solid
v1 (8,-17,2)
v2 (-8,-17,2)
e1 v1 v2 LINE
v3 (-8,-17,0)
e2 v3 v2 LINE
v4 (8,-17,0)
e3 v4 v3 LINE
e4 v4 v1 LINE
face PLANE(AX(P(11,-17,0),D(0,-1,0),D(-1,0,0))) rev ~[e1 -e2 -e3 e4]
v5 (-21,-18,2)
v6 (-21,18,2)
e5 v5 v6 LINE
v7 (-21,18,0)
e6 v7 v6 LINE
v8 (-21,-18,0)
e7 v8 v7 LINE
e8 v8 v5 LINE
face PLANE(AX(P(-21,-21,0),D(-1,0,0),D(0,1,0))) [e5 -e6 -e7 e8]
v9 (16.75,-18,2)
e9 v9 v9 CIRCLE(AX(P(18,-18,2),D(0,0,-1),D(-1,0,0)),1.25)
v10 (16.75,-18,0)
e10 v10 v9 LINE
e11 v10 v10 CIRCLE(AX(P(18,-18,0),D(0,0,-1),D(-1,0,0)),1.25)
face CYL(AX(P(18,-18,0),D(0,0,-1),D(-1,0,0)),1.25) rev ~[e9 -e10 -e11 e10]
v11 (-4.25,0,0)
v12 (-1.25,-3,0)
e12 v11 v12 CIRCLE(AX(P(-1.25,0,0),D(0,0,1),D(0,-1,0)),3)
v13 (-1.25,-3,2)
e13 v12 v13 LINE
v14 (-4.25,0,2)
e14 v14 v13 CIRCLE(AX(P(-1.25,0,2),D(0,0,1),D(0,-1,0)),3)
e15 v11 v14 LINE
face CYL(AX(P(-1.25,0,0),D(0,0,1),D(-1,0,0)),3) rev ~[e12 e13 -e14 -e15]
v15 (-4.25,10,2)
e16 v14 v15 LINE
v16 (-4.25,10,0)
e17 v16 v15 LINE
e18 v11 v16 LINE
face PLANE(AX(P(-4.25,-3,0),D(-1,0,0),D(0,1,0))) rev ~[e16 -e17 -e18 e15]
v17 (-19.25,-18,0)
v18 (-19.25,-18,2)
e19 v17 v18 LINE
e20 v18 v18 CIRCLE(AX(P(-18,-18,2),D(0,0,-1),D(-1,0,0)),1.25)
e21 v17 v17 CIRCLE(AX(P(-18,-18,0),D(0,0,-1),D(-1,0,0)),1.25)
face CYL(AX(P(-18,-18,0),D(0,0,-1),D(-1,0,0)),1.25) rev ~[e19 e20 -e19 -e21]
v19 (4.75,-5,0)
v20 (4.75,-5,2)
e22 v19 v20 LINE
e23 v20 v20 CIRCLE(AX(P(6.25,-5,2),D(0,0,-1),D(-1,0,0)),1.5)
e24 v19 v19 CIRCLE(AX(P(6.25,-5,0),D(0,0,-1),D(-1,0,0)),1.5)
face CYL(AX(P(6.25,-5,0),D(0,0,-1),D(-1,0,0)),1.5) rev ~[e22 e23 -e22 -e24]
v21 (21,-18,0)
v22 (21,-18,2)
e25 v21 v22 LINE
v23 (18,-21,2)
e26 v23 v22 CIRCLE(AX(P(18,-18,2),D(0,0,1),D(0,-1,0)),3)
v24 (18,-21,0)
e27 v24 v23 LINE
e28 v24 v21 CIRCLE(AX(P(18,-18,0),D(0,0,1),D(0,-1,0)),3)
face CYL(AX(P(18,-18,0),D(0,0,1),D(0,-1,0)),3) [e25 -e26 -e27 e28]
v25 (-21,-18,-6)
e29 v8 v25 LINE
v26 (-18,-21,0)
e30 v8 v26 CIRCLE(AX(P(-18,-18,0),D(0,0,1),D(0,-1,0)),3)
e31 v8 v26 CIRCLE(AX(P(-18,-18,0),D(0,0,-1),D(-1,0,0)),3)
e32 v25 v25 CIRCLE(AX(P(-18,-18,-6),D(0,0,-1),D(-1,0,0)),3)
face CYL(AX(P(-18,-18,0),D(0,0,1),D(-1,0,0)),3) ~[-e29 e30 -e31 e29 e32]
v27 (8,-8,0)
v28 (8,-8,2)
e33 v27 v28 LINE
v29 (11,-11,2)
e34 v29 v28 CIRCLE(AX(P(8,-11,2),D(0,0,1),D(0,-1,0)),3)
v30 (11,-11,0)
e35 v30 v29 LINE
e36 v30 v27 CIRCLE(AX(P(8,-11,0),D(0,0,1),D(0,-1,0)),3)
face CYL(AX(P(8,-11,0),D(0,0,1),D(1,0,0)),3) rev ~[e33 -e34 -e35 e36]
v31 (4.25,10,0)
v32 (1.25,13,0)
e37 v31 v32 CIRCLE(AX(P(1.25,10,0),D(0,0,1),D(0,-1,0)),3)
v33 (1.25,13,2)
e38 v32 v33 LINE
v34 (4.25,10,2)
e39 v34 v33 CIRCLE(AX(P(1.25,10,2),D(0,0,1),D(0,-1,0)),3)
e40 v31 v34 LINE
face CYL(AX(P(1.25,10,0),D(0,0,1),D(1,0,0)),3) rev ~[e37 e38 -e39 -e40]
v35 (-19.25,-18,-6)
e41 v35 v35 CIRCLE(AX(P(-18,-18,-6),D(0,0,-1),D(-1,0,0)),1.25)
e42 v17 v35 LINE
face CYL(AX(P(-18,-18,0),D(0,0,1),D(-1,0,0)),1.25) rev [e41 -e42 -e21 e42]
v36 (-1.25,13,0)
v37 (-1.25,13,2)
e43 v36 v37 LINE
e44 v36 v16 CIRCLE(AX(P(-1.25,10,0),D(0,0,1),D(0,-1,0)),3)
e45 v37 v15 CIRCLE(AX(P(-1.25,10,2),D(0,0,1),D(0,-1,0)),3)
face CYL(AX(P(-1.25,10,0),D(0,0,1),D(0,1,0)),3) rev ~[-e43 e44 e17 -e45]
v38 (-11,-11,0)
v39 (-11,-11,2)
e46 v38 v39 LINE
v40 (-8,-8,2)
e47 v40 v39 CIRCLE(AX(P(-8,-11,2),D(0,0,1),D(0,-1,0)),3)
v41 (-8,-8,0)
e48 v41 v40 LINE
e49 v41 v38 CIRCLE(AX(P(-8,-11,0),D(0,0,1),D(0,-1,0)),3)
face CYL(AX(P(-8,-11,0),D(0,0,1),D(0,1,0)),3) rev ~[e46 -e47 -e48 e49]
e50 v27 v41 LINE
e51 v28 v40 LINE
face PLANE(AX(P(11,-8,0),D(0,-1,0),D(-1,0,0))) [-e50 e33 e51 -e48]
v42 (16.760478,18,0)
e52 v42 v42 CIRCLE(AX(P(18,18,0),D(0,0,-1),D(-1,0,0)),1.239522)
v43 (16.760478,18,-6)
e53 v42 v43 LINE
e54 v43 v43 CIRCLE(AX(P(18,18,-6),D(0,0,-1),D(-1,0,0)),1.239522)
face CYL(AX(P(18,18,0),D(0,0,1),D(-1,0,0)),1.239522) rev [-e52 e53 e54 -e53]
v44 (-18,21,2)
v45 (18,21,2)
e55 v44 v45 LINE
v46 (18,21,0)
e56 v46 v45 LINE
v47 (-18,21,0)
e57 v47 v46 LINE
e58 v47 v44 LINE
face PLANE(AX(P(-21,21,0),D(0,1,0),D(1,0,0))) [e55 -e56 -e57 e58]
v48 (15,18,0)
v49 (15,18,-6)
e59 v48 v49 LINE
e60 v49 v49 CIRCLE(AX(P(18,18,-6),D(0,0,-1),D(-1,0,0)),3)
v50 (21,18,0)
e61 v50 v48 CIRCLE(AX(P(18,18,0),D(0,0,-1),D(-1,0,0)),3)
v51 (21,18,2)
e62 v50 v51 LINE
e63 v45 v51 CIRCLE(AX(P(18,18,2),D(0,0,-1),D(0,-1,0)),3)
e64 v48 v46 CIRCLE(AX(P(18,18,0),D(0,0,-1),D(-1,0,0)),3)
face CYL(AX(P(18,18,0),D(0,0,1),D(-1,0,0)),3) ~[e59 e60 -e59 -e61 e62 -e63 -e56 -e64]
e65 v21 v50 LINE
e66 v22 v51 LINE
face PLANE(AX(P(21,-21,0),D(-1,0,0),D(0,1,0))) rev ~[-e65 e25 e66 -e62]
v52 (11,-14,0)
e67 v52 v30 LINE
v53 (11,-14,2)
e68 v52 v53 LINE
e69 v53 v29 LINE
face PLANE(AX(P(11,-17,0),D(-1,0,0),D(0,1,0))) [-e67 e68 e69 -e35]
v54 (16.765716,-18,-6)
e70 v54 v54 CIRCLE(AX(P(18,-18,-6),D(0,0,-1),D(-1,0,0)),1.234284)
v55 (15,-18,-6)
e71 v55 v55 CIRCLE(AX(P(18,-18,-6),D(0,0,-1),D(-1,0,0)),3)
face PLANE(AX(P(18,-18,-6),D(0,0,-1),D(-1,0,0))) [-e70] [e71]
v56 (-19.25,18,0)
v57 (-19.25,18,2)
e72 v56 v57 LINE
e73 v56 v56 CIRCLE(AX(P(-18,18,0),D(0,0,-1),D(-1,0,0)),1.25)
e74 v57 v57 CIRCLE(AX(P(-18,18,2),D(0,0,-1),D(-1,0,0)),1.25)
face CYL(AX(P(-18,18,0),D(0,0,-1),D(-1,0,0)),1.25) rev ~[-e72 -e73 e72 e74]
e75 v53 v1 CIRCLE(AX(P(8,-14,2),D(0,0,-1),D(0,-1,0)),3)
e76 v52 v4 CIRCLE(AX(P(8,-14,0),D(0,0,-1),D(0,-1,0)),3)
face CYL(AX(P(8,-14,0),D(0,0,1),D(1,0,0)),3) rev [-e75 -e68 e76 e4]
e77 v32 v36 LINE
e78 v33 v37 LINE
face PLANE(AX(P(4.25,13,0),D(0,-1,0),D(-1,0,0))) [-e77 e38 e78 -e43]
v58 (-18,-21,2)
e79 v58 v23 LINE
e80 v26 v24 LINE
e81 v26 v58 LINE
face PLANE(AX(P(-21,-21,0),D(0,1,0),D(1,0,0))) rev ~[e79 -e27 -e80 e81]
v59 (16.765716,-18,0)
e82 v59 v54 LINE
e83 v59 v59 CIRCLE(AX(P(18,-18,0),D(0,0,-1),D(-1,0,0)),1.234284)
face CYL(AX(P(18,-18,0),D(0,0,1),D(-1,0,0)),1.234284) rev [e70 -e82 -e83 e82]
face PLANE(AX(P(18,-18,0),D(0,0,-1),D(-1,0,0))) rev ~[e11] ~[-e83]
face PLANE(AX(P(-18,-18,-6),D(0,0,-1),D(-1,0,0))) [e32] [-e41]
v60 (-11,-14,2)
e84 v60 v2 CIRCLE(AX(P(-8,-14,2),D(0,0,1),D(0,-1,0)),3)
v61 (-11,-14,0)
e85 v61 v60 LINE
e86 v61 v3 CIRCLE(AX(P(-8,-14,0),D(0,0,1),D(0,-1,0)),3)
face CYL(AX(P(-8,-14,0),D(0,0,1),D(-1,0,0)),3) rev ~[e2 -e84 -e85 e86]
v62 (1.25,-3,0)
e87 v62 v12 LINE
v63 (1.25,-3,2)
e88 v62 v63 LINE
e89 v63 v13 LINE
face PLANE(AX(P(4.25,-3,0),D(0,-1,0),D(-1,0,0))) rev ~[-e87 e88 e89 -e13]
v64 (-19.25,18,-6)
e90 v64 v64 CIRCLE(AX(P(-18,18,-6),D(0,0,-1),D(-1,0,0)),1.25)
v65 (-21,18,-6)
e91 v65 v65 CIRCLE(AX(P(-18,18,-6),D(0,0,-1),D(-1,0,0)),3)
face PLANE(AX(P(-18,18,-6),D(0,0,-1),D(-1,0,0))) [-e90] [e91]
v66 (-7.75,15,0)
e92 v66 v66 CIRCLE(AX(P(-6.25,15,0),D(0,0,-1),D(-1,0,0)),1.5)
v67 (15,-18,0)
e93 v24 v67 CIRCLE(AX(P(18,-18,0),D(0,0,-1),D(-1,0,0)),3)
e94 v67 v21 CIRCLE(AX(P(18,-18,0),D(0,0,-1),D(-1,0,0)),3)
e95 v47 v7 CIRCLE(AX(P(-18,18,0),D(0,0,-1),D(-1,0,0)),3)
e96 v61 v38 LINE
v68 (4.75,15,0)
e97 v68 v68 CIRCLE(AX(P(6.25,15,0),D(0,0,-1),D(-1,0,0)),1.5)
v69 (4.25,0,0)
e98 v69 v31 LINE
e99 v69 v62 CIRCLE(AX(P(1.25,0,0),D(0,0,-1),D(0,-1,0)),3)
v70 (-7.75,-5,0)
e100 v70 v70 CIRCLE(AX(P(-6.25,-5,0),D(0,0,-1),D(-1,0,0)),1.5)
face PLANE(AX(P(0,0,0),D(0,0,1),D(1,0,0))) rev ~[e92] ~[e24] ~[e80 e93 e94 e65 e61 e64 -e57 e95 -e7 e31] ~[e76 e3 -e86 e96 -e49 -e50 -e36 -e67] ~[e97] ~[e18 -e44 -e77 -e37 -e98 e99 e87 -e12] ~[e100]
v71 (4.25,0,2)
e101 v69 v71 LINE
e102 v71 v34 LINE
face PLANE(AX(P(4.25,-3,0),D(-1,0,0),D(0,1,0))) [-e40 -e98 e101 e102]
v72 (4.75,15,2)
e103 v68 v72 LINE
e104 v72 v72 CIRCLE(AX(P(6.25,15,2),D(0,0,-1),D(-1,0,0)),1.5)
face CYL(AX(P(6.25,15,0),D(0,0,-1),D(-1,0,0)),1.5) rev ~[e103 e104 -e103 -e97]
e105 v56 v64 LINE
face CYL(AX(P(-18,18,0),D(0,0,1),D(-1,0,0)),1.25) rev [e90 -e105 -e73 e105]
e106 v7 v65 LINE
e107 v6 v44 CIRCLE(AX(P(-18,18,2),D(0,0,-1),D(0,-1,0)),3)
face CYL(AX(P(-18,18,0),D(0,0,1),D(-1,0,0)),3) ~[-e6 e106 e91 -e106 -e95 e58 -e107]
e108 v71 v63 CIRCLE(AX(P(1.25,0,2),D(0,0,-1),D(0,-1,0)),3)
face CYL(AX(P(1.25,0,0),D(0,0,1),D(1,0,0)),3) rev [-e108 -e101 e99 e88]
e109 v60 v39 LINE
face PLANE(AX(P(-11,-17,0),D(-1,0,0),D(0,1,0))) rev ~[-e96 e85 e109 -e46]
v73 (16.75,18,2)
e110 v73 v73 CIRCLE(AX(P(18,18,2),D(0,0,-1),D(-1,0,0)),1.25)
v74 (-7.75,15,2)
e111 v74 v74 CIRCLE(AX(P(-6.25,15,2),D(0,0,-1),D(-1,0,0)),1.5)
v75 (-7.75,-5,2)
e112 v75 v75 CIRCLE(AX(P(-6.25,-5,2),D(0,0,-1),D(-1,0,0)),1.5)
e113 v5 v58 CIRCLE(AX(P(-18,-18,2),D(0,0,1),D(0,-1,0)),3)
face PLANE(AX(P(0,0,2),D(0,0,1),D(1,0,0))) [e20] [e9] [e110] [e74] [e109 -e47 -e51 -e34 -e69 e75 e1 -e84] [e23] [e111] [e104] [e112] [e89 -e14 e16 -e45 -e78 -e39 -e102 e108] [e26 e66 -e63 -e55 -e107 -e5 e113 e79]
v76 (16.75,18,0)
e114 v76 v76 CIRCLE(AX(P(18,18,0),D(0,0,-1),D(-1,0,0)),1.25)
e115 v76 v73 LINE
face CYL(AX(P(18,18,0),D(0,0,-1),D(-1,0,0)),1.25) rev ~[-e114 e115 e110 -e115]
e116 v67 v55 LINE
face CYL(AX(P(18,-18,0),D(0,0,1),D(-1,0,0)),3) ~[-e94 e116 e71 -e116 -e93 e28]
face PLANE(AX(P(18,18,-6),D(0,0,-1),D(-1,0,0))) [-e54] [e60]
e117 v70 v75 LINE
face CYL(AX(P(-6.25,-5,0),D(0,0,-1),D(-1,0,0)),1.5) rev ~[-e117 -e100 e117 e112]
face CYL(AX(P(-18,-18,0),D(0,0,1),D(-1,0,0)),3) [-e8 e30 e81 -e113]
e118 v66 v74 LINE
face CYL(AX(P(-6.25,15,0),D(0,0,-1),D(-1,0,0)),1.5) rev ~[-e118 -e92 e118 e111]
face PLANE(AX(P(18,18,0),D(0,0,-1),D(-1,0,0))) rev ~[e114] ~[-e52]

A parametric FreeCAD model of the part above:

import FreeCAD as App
import Part
import Sketcher

V = App.Vector


def edges_at(feature, points):
    """Names of the edges that pass closest to the given points."""
    edges = feature.Shape.Edges
    near = lambda p: min(range(len(edges)), key=lambda i: edges[i].distToShape(Part.Vertex(*p))[0])
    return sorted({f"Edge{near(p) + 1}" for p in points})


def add_polygon(sketch, points):
    """Adds a closed chain of lines whose ends are joined by coincident constraints."""
    first, n = sketch.GeometryCount, len(points)
    for a, b in zip(points, points[1:] + points[:1]):
        sketch.addGeometry(Part.LineSegment(App.Vector(*a, 0), App.Vector(*b, 0)), False)
    for i in range(n):
        sketch.addConstraint(Sketcher.Constraint("Coincident", first + i, 2, first + (i + 1) % n, 1))

doc = App.newDocument("Part")
params = doc.addObject("Spreadsheet::Sheet", "Params")
for row, (alias, value) in enumerate([
    ("sketch1_width", "42 mm"),
    ("pad1_length", "2 mm"),
    ("sketch2_diameter", "3 mm"),
    ("sketch2_diameter2", "2.5 mm"),
    ("sketch2_width", "22 mm"),
    ("sketch2_height", "16 mm"),
    ("sketch2_height2", "9 mm"),
    ("pocket1_length", "2 mm"),
    ("fillet_radius", "3 mm"),
    ("sketch3_diameter", "6 mm"),
    ("sketch3_diameter2", "2.5 mm"),
    ("pad2_length", "6 mm"),
], start=1):
    params.set(f"A{row}", alias)
    params.set(f"B{row}", "=" + value)
    params.setAlias(f"B{row}", alias)

body = doc.addObject("PartDesign::Body", "Body")

sketch1 = doc.addObject("Sketcher::SketchObject", "Sketch")
body.addObject(sketch1)
sketch1.AttachmentSupport = (doc.XY_Plane, [""])
sketch1.MapMode = "FlatFace"
add_polygon(sketch1, [(-21, 21), (-21, -21), (21, -21), (21, 21)])
sketch1.addConstraint(Sketcher.Constraint("Vertical", 0))
sketch1.addConstraint(Sketcher.Constraint("Horizontal", 1))
sketch1.addConstraint(Sketcher.Constraint("Vertical", 2))
sketch1.addConstraint(Sketcher.Constraint("Horizontal", 3))
sketch1.addConstraint(Sketcher.Constraint("Symmetric", 0, 2, 2, 2, -1, 1))
sketch1.addConstraint(Sketcher.Constraint("Equal", 3, 0))
sketch1.addConstraint(Sketcher.Constraint("DistanceX", 1, 1, 1, 2, 42.0))
sketch1.setExpression("Constraints[10]", "Params.sketch1_width")
pad1 = doc.addObject("PartDesign::Pad", "Pad")
body.addObject(pad1)
pad1.Profile = sketch1
pad1.setExpression("Length", "Params.pad1_length")

sketch2 = doc.addObject("Sketcher::SketchObject", "Sketch001")
body.addObject(sketch2)
sketch2.AttachmentSupport = (doc.XY_Plane, [""])
sketch2.MapMode = "FlatFace"
sketch2.addGeometry(Part.Circle(V(6.25, 15, 0), V(0, 0, 1), 1.5), False)
sketch2.addGeometry(Part.Circle(V(-6.25, 15, 0), V(0, 0, 1), 1.5), False)
sketch2.addGeometry(Part.Circle(V(-6.25, -5, 0), V(0, 0, 1), 1.5), False)
sketch2.addGeometry(Part.Circle(V(6.25, -5, 0), V(0, 0, 1), 1.5), False)
sketch2.addGeometry(Part.Circle(V(-18, -18, 0), V(0, 0, 1), 1.25), False)
sketch2.addGeometry(Part.Circle(V(18, -18, 0), V(0, 0, 1), 1.25), False)
sketch2.addGeometry(Part.Circle(V(18, 18, 0), V(0, 0, 1), 1.25), False)
sketch2.addGeometry(Part.Circle(V(-18, 18, 0), V(0, 0, 1), 1.25), False)
add_polygon(sketch2, [(4.25, 13), (4.25, -3), (-4.25, -3), (-4.25, 13)])
add_polygon(sketch2, [(11, -8), (11, -17), (-11, -17), (-11, -8)])
sketch2.addConstraint(Sketcher.Constraint("Vertical", 8))
sketch2.addConstraint(Sketcher.Constraint("Horizontal", 9))
sketch2.addConstraint(Sketcher.Constraint("Vertical", 10))
sketch2.addConstraint(Sketcher.Constraint("Horizontal", 11))
sketch2.addConstraint(Sketcher.Constraint("Vertical", 12))
sketch2.addConstraint(Sketcher.Constraint("Horizontal", 13))
sketch2.addConstraint(Sketcher.Constraint("Vertical", 14))
sketch2.addConstraint(Sketcher.Constraint("Horizontal", 15))
sketch2.addConstraint(Sketcher.Constraint("Equal", 0, 1))
sketch2.addConstraint(Sketcher.Constraint("Equal", 1, 2))
sketch2.addConstraint(Sketcher.Constraint("Equal", 2, 3))
sketch2.addConstraint(Sketcher.Constraint("Equal", 4, 5))
sketch2.addConstraint(Sketcher.Constraint("Equal", 5, 6))
sketch2.addConstraint(Sketcher.Constraint("Equal", 6, 7))
sketch2.addConstraint(Sketcher.Constraint("Symmetric", 4, 3, 6, 3, -1, 1))
sketch2.addConstraint(Sketcher.Constraint("Symmetric", 5, 3, 7, 3, -1, 1))
sketch2.addConstraint(Sketcher.Constraint("Symmetric", 0, 3, 1, 3, -2))
sketch2.addConstraint(Sketcher.Constraint("Symmetric", 2, 3, 3, 3, -2))
sketch2.addConstraint(Sketcher.Constraint("Symmetric", 4, 3, 5, 3, -2))
sketch2.addConstraint(Sketcher.Constraint("Vertical", 1, 3, 2, 3))
sketch2.addConstraint(Sketcher.Constraint("Diameter", 0, 3.0))
sketch2.addConstraint(Sketcher.Constraint("Diameter", 4, 2.5))
sketch2.addConstraint(Sketcher.Constraint("DistanceX", 13, 2, 13, 1, 22.0))
sketch2.addConstraint(Sketcher.Constraint("DistanceY", 8, 2, 8, 1, 16.0))
sketch2.addConstraint(Sketcher.Constraint("DistanceY", 12, 2, 12, 1, 9.0))
sketch2.addConstraint(Sketcher.Constraint("DistanceX", 9, 2, 9, 1, 8.5))
sketch2.addConstraint(Sketcher.Constraint("DistanceY", -1, 1, 0, 3, 15.0))
sketch2.addConstraint(Sketcher.Constraint("DistanceY", 2, 3, -1, 1, 5.0))
sketch2.addConstraint(Sketcher.Constraint("DistanceX", 4, 3, -1, 1, 18.0))
sketch2.addConstraint(Sketcher.Constraint("DistanceY", 4, 3, -1, 1, 18.0))
sketch2.addConstraint(Sketcher.Constraint("DistanceY", 8, 2, -1, 1, 3.0))
sketch2.addConstraint(Sketcher.Constraint("DistanceX", -1, 1, 12, 2, 11.0))
sketch2.addConstraint(Sketcher.Constraint("DistanceY", 12, 2, -1, 1, 17.0))
sketch2.addConstraint(Sketcher.Constraint("DistanceX", 8, 2, 3, 3, 2.0))
sketch2.addConstraint(Sketcher.Constraint("DistanceX", 2, 3, 9, 2, 2.0))
sketch2.setExpression("Constraints[28]", "Params.sketch2_diameter")
sketch2.setExpression("Constraints[29]", "Params.sketch2_diameter2")
sketch2.setExpression("Constraints[30]", "Params.sketch2_width")
sketch2.setExpression("Constraints[31]", "Params.sketch2_height")
sketch2.setExpression("Constraints[32]", "Params.sketch2_height2")
pocket1 = doc.addObject("PartDesign::Pocket", "Pocket")
body.addObject(pocket1)
pocket1.Profile = sketch2
pocket1.setExpression("Length", "Params.pocket1_length")
pocket1.Reversed = True
doc.recompute()

fillet = doc.addObject("PartDesign::Fillet", "Fillet")
body.addObject(fillet)
fillet.Base = (pocket1, edges_at(pocket1, [
    (-11, -8, 1),
    (-11, -17, 1),
    (11, -17, 1),
    (11, -8, 1),
    (4.25, 13, 1),
    (-4.25, 13, 1),
    (-4.25, -3, 1),
    (4.25, -3, 1),
    (21, -21, 1),
    (-21, -21, 1),
    (-21, 21, 1),
    (21, 21, 1),
]))
fillet.setExpression("Radius", "Params.fillet_radius")

sketch3 = doc.addObject("Sketcher::SketchObject", "Sketch002")
body.addObject(sketch3)
sketch3.AttachmentSupport = (doc.XY_Plane, [""])
sketch3.MapMode = "FlatFace"
sketch3.addGeometry(Part.Circle(V(-18, 18, 0), V(0, 0, 1), 3), False)
sketch3.addGeometry(Part.Circle(V(-18, 18, 0), V(0, 0, 1), 1.25), False)
sketch3.addGeometry(Part.Circle(V(-18, -18, 0), V(0, 0, 1), 3), False)
sketch3.addGeometry(Part.Circle(V(-18, -18, 0), V(0, 0, 1), 1.25), False)
sketch3.addGeometry(Part.Circle(V(18, -18, 0), V(0, 0, 1), 3), False)
sketch3.addGeometry(Part.Circle(V(18, -18, 0), V(0, 0, 1), 1.234284), False)
sketch3.addGeometry(Part.Circle(V(18, 18, 0), V(0, 0, 1), 3), False)
sketch3.addGeometry(Part.Circle(V(18, 18, 0), V(0, 0, 1), 1.239522), False)
sketch3.addConstraint(Sketcher.Constraint("Coincident", 1, 3, 0, 3))
sketch3.addConstraint(Sketcher.Constraint("Coincident", 3, 3, 2, 3))
sketch3.addConstraint(Sketcher.Constraint("Coincident", 5, 3, 4, 3))
sketch3.addConstraint(Sketcher.Constraint("Coincident", 7, 3, 6, 3))
sketch3.addConstraint(Sketcher.Constraint("Equal", 0, 2))
sketch3.addConstraint(Sketcher.Constraint("Equal", 1, 3))
sketch3.addConstraint(Sketcher.Constraint("Equal", 2, 4))
sketch3.addConstraint(Sketcher.Constraint("Equal", 4, 6))
sketch3.addConstraint(Sketcher.Constraint("Symmetric", 0, 3, 4, 3, -1, 1))
sketch3.addConstraint(Sketcher.Constraint("Symmetric", 2, 3, 6, 3, -1, 1))
sketch3.addConstraint(Sketcher.Constraint("Symmetric", 2, 3, 4, 3, -2))
sketch3.addConstraint(Sketcher.Constraint("Diameter", 0, 6.0))
sketch3.addConstraint(Sketcher.Constraint("Diameter", 1, 2.5))
sketch3.addConstraint(Sketcher.Constraint("DistanceX", 0, 3, -1, 1, 18.0))
sketch3.addConstraint(Sketcher.Constraint("DistanceY", -1, 1, 0, 3, 18.0))
sketch3.addConstraint(Sketcher.Constraint("Diameter", 5, 2.468567))
sketch3.addConstraint(Sketcher.Constraint("Diameter", 7, 2.479045))
sketch3.setExpression("Constraints[11]", "Params.sketch3_diameter")
sketch3.setExpression("Constraints[12]", "Params.sketch3_diameter2")
pad2 = doc.addObject("PartDesign::Pad", "Pad001")
body.addObject(pad2)
pad2.Profile = sketch3
pad2.setExpression("Length", "Params.pad2_length")
pad2.Reversed = True

doc.recompute()
